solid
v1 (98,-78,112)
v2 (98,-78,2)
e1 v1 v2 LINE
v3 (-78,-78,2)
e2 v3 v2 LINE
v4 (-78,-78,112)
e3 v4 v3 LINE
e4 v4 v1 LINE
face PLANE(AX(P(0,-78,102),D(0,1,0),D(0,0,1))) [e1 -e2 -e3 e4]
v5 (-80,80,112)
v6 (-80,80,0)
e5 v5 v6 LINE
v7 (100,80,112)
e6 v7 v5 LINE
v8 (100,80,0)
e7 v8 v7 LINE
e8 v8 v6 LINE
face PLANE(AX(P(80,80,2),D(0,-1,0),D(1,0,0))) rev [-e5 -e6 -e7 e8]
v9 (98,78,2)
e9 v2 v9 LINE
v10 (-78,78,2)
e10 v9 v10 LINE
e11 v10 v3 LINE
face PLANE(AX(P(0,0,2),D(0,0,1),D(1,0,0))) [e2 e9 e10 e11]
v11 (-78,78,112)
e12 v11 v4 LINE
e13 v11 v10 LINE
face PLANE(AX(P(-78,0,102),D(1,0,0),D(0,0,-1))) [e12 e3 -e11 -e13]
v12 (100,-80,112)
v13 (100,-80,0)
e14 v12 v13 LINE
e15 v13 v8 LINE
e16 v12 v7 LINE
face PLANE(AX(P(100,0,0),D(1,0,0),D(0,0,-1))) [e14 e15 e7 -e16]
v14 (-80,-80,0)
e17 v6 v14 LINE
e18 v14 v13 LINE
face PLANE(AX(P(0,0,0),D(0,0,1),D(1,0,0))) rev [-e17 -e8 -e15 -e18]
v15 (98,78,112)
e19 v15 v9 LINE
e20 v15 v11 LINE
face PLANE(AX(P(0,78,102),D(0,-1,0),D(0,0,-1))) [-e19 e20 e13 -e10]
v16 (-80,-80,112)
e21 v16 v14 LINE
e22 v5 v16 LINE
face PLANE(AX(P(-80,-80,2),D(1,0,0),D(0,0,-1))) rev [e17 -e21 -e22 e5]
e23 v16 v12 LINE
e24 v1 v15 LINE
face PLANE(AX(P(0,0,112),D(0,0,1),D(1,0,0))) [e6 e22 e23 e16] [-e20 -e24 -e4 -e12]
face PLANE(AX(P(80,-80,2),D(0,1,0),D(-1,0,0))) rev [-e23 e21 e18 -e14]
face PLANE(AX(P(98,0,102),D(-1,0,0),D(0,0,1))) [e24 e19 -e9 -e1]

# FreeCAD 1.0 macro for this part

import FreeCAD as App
import Part
import Sketcher

V = App.Vector
Q = App.Units.Quantity

doc = App.newDocument("Part")
body = doc.addObject("PartDesign::Body", "Body")

sketch1 = body.newObject("Sketcher::SketchObject", "Sketch")
sketch1.AttachmentSupport = (doc.getObject("XY_Plane"), [""])
sketch1.MapMode = "FlatFace"
sketch1.addGeometry([
    Part.LineSegment(V(-80, 80, 0), V(-80, -80, 0)),
    Part.LineSegment(V(-80, -80, 0), V(80, -80, 0)),
    Part.LineSegment(V(80, -80, 0), V(80, 80, 0)),
    Part.LineSegment(V(80, 80, 0), V(-80, 80, 0)),
], False)
sketch1.addConstraint([
    Sketcher.Constraint("Coincident", 0, 2, 1, 1),
    Sketcher.Constraint("Coincident", 1, 2, 2, 1),
    Sketcher.Constraint("Coincident", 2, 2, 3, 1),
    Sketcher.Constraint("Coincident", 3, 2, 0, 1),
    Sketcher.Constraint("Vertical", 0),
    Sketcher.Constraint("Horizontal", 1),
    Sketcher.Constraint("Vertical", 2),
    Sketcher.Constraint("Horizontal", 3),
    Sketcher.Constraint("Symmetric", 0, 2, 2, 2, -1, 1),
    Sketcher.Constraint("Equal", 3, 0),
    Sketcher.Constraint("DistanceX", 1, 1, 1, 2, Q("160 mm")),
])
pad1 = body.newObject("PartDesign::Pad", "Pad")
pad1.Profile = sketch1
pad1.Length = 2

sketch2 = body.newObject("Sketcher::SketchObject", "Sketch001")
sketch2.AttachmentSupport = (doc.getObject("YZ_Plane"), [""])
sketch2.MapMode = "FlatFace"
sketch2.AttachmentOffset = App.Placement(V(0, 0, 80), App.Rotation())
sketch2.addGeometry([
    Part.LineSegment(V(80, 2, 0), V(-80, 2, 0)),
    Part.LineSegment(V(-80, 2, 0), V(-80, 0, 0)),
    Part.LineSegment(V(-80, 0, 0), V(80, 0, 0)),
    Part.LineSegment(V(80, 0, 0), V(80, 2, 0)),
], False)
sketch2.addConstraint([
    Sketcher.Constraint("Coincident", 0, 2, 1, 1),
    Sketcher.Constraint("Coincident", 1, 2, 2, 1),
    Sketcher.Constraint("Coincident", 2, 2, 3, 1),
    Sketcher.Constraint("Coincident", 3, 2, 0, 1),
    Sketcher.Constraint("Horizontal", 0),
    Sketcher.Constraint("Vertical", 1),
    Sketcher.Constraint("Horizontal", 2),
    Sketcher.Constraint("Vertical", 3),
    Sketcher.Constraint("Symmetric", 1, 2, 2, 2, -1, 1),
    Sketcher.Constraint("DistanceX", 0, 2, 0, 1, Q("160 mm")),
    Sketcher.Constraint("DistanceY", 1, 2, 1, 1, Q("2 mm")),
])
pad2 = body.newObject("PartDesign::Pad", "Pad001")
pad2.Profile = sketch2
pad2.Length = 20

sketch3 = body.newObject("Sketcher::SketchObject", "Sketch002")
sketch3.AttachmentSupport = (doc.getObject("XY_Plane"), [""])
sketch3.MapMode = "FlatFace"
sketch3.AttachmentOffset = App.Placement(V(0, 0, 2), App.Rotation())
sketch3.addGeometry([
    Part.LineSegment(V(-80, 80, 0), V(-80, -80, 0)),
    Part.LineSegment(V(-80, -80, 0), V(100, -80, 0)),
    Part.LineSegment(V(100, -80, 0), V(100, 80, 0)),
    Part.LineSegment(V(100, 80, 0), V(-80, 80, 0)),
    Part.LineSegment(V(98, -78, 0), V(-78, -78, 0)),
    Part.LineSegment(V(-78, -78, 0), V(-78, 78, 0)),
    Part.LineSegment(V(-78, 78, 0), V(98, 78, 0)),
    Part.LineSegment(V(98, 78, 0), V(98, -78, 0)),
], False)
sketch3.addConstraint([
    Sketcher.Constraint("Coincident", 0, 2, 1, 1),
    Sketcher.Constraint("Coincident", 1, 2, 2, 1),
    Sketcher.Constraint("Coincident", 2, 2, 3, 1),
    Sketcher.Constraint("Coincident", 3, 2, 0, 1),
    Sketcher.Constraint("Coincident", 4, 2, 5, 1),
    Sketcher.Constraint("Coincident", 5, 2, 6, 1),
    Sketcher.Constraint("Coincident", 6, 2, 7, 1),
    Sketcher.Constraint("Coincident", 7, 2, 4, 1),
    Sketcher.Constraint("Vertical", 0),
    Sketcher.Constraint("Horizontal", 1),
    Sketcher.Constraint("Vertical", 2),
    Sketcher.Constraint("Horizontal", 3),
    Sketcher.Constraint("Horizontal", 4),
    Sketcher.Constraint("Vertical", 5),
    Sketcher.Constraint("Horizontal", 6),
    Sketcher.Constraint("Vertical", 7),
    Sketcher.Constraint("DistanceX", 1, 1, 1, 2, Q("180 mm")),
    Sketcher.Constraint("DistanceX", 4, 2, 4, 1, Q("176 mm")),
    Sketcher.Constraint("DistanceY", 0, 2, 0, 1, Q("160 mm")),
    Sketcher.Constraint("DistanceY", 5, 1, 5, 2, Q("156 mm")),
    Sketcher.Constraint("DistanceX", 0, 2, -1, 1, Q("80 mm")),
    Sketcher.Constraint("DistanceY", 0, 2, -1, 1, Q("80 mm")),
    Sketcher.Constraint("DistanceX", 4, 2, -1, 1, Q("78 mm")),
    Sketcher.Constraint("DistanceY", 4, 2, -1, 1, Q("78 mm")),
])
pad3 = body.newObject("PartDesign::Pad", "Pad002")
pad3.Profile = sketch3
pad3.Length = 100

sketch4 = body.newObject("Sketcher::SketchObject", "Sketch003")
sketch4.AttachmentSupport = (doc.getObject("XY_Plane"), [""])
sketch4.MapMode = "FlatFace"
sketch4.AttachmentOffset = App.Placement(V(0, 0, 102), App.Rotation())
sketch4.addGeometry([
    Part.LineSegment(V(-80, 80, 0), V(-80, -80, 0)),
    Part.LineSegment(V(-80, -80, 0), V(100, -80, 0)),
    Part.LineSegment(V(100, -80, 0), V(100, 80, 0)),
    Part.LineSegment(V(100, 80, 0), V(-80, 80, 0)),
    Part.LineSegment(V(98, -78, 0), V(-78, -78, 0)),
    Part.LineSegment(V(-78, -78, 0), V(-78, 78, 0)),
    Part.LineSegment(V(-78, 78, 0), V(98, 78, 0)),
    Part.LineSegment(V(98, 78, 0), V(98, -78, 0)),
], False)
sketch4.addConstraint([
    Sketcher.Constraint("Coincident", 0, 2, 1, 1),
    Sketcher.Constraint("Coincident", 1, 2, 2, 1),
    Sketcher.Constraint("Coincident", 2, 2, 3, 1),
    Sketcher.Constraint("Coincident", 3, 2, 0, 1),
    Sketcher.Constraint("Coincident", 4, 2, 5, 1),
    Sketcher.Constraint("Coincident", 5, 2, 6, 1),
    Sketcher.Constraint("Coincident", 6, 2, 7, 1),
    Sketcher.Constraint("Coincident", 7, 2, 4, 1),
    Sketcher.Constraint("Vertical", 0),
    Sketcher.Constraint("Horizontal", 1),
    Sketcher.Constraint("Vertical", 2),
    Sketcher.Constraint("Horizontal", 3),
    Sketcher.Constraint("Horizontal", 4),
    Sketcher.Constraint("Vertical", 5),
    Sketcher.Constraint("Horizontal", 6),
    Sketcher.Constraint("Vertical", 7),
    Sketcher.Constraint("DistanceX", 1, 1, 1, 2, Q("180 mm")),
    Sketcher.Constraint("DistanceX", 4, 2, 4, 1, Q("176 mm")),
    Sketcher.Constraint("DistanceY", 0, 2, 0, 1, Q("160 mm")),
    Sketcher.Constraint("DistanceY", 5, 1, 5, 2, Q("156 mm")),
    Sketcher.Constraint("DistanceX", 0, 2, -1, 1, Q("80 mm")),
    Sketcher.Constraint("DistanceY", 0, 2, -1, 1, Q("80 mm")),
    Sketcher.Constraint("DistanceX", 4, 2, -1, 1, Q("78 mm")),
    Sketcher.Constraint("DistanceY", 4, 2, -1, 1, Q("78 mm")),
])
pad4 = body.newObject("PartDesign::Pad", "Pad003")
pad4.Profile = sketch4
pad4.Length = 10

doc.recompute()
